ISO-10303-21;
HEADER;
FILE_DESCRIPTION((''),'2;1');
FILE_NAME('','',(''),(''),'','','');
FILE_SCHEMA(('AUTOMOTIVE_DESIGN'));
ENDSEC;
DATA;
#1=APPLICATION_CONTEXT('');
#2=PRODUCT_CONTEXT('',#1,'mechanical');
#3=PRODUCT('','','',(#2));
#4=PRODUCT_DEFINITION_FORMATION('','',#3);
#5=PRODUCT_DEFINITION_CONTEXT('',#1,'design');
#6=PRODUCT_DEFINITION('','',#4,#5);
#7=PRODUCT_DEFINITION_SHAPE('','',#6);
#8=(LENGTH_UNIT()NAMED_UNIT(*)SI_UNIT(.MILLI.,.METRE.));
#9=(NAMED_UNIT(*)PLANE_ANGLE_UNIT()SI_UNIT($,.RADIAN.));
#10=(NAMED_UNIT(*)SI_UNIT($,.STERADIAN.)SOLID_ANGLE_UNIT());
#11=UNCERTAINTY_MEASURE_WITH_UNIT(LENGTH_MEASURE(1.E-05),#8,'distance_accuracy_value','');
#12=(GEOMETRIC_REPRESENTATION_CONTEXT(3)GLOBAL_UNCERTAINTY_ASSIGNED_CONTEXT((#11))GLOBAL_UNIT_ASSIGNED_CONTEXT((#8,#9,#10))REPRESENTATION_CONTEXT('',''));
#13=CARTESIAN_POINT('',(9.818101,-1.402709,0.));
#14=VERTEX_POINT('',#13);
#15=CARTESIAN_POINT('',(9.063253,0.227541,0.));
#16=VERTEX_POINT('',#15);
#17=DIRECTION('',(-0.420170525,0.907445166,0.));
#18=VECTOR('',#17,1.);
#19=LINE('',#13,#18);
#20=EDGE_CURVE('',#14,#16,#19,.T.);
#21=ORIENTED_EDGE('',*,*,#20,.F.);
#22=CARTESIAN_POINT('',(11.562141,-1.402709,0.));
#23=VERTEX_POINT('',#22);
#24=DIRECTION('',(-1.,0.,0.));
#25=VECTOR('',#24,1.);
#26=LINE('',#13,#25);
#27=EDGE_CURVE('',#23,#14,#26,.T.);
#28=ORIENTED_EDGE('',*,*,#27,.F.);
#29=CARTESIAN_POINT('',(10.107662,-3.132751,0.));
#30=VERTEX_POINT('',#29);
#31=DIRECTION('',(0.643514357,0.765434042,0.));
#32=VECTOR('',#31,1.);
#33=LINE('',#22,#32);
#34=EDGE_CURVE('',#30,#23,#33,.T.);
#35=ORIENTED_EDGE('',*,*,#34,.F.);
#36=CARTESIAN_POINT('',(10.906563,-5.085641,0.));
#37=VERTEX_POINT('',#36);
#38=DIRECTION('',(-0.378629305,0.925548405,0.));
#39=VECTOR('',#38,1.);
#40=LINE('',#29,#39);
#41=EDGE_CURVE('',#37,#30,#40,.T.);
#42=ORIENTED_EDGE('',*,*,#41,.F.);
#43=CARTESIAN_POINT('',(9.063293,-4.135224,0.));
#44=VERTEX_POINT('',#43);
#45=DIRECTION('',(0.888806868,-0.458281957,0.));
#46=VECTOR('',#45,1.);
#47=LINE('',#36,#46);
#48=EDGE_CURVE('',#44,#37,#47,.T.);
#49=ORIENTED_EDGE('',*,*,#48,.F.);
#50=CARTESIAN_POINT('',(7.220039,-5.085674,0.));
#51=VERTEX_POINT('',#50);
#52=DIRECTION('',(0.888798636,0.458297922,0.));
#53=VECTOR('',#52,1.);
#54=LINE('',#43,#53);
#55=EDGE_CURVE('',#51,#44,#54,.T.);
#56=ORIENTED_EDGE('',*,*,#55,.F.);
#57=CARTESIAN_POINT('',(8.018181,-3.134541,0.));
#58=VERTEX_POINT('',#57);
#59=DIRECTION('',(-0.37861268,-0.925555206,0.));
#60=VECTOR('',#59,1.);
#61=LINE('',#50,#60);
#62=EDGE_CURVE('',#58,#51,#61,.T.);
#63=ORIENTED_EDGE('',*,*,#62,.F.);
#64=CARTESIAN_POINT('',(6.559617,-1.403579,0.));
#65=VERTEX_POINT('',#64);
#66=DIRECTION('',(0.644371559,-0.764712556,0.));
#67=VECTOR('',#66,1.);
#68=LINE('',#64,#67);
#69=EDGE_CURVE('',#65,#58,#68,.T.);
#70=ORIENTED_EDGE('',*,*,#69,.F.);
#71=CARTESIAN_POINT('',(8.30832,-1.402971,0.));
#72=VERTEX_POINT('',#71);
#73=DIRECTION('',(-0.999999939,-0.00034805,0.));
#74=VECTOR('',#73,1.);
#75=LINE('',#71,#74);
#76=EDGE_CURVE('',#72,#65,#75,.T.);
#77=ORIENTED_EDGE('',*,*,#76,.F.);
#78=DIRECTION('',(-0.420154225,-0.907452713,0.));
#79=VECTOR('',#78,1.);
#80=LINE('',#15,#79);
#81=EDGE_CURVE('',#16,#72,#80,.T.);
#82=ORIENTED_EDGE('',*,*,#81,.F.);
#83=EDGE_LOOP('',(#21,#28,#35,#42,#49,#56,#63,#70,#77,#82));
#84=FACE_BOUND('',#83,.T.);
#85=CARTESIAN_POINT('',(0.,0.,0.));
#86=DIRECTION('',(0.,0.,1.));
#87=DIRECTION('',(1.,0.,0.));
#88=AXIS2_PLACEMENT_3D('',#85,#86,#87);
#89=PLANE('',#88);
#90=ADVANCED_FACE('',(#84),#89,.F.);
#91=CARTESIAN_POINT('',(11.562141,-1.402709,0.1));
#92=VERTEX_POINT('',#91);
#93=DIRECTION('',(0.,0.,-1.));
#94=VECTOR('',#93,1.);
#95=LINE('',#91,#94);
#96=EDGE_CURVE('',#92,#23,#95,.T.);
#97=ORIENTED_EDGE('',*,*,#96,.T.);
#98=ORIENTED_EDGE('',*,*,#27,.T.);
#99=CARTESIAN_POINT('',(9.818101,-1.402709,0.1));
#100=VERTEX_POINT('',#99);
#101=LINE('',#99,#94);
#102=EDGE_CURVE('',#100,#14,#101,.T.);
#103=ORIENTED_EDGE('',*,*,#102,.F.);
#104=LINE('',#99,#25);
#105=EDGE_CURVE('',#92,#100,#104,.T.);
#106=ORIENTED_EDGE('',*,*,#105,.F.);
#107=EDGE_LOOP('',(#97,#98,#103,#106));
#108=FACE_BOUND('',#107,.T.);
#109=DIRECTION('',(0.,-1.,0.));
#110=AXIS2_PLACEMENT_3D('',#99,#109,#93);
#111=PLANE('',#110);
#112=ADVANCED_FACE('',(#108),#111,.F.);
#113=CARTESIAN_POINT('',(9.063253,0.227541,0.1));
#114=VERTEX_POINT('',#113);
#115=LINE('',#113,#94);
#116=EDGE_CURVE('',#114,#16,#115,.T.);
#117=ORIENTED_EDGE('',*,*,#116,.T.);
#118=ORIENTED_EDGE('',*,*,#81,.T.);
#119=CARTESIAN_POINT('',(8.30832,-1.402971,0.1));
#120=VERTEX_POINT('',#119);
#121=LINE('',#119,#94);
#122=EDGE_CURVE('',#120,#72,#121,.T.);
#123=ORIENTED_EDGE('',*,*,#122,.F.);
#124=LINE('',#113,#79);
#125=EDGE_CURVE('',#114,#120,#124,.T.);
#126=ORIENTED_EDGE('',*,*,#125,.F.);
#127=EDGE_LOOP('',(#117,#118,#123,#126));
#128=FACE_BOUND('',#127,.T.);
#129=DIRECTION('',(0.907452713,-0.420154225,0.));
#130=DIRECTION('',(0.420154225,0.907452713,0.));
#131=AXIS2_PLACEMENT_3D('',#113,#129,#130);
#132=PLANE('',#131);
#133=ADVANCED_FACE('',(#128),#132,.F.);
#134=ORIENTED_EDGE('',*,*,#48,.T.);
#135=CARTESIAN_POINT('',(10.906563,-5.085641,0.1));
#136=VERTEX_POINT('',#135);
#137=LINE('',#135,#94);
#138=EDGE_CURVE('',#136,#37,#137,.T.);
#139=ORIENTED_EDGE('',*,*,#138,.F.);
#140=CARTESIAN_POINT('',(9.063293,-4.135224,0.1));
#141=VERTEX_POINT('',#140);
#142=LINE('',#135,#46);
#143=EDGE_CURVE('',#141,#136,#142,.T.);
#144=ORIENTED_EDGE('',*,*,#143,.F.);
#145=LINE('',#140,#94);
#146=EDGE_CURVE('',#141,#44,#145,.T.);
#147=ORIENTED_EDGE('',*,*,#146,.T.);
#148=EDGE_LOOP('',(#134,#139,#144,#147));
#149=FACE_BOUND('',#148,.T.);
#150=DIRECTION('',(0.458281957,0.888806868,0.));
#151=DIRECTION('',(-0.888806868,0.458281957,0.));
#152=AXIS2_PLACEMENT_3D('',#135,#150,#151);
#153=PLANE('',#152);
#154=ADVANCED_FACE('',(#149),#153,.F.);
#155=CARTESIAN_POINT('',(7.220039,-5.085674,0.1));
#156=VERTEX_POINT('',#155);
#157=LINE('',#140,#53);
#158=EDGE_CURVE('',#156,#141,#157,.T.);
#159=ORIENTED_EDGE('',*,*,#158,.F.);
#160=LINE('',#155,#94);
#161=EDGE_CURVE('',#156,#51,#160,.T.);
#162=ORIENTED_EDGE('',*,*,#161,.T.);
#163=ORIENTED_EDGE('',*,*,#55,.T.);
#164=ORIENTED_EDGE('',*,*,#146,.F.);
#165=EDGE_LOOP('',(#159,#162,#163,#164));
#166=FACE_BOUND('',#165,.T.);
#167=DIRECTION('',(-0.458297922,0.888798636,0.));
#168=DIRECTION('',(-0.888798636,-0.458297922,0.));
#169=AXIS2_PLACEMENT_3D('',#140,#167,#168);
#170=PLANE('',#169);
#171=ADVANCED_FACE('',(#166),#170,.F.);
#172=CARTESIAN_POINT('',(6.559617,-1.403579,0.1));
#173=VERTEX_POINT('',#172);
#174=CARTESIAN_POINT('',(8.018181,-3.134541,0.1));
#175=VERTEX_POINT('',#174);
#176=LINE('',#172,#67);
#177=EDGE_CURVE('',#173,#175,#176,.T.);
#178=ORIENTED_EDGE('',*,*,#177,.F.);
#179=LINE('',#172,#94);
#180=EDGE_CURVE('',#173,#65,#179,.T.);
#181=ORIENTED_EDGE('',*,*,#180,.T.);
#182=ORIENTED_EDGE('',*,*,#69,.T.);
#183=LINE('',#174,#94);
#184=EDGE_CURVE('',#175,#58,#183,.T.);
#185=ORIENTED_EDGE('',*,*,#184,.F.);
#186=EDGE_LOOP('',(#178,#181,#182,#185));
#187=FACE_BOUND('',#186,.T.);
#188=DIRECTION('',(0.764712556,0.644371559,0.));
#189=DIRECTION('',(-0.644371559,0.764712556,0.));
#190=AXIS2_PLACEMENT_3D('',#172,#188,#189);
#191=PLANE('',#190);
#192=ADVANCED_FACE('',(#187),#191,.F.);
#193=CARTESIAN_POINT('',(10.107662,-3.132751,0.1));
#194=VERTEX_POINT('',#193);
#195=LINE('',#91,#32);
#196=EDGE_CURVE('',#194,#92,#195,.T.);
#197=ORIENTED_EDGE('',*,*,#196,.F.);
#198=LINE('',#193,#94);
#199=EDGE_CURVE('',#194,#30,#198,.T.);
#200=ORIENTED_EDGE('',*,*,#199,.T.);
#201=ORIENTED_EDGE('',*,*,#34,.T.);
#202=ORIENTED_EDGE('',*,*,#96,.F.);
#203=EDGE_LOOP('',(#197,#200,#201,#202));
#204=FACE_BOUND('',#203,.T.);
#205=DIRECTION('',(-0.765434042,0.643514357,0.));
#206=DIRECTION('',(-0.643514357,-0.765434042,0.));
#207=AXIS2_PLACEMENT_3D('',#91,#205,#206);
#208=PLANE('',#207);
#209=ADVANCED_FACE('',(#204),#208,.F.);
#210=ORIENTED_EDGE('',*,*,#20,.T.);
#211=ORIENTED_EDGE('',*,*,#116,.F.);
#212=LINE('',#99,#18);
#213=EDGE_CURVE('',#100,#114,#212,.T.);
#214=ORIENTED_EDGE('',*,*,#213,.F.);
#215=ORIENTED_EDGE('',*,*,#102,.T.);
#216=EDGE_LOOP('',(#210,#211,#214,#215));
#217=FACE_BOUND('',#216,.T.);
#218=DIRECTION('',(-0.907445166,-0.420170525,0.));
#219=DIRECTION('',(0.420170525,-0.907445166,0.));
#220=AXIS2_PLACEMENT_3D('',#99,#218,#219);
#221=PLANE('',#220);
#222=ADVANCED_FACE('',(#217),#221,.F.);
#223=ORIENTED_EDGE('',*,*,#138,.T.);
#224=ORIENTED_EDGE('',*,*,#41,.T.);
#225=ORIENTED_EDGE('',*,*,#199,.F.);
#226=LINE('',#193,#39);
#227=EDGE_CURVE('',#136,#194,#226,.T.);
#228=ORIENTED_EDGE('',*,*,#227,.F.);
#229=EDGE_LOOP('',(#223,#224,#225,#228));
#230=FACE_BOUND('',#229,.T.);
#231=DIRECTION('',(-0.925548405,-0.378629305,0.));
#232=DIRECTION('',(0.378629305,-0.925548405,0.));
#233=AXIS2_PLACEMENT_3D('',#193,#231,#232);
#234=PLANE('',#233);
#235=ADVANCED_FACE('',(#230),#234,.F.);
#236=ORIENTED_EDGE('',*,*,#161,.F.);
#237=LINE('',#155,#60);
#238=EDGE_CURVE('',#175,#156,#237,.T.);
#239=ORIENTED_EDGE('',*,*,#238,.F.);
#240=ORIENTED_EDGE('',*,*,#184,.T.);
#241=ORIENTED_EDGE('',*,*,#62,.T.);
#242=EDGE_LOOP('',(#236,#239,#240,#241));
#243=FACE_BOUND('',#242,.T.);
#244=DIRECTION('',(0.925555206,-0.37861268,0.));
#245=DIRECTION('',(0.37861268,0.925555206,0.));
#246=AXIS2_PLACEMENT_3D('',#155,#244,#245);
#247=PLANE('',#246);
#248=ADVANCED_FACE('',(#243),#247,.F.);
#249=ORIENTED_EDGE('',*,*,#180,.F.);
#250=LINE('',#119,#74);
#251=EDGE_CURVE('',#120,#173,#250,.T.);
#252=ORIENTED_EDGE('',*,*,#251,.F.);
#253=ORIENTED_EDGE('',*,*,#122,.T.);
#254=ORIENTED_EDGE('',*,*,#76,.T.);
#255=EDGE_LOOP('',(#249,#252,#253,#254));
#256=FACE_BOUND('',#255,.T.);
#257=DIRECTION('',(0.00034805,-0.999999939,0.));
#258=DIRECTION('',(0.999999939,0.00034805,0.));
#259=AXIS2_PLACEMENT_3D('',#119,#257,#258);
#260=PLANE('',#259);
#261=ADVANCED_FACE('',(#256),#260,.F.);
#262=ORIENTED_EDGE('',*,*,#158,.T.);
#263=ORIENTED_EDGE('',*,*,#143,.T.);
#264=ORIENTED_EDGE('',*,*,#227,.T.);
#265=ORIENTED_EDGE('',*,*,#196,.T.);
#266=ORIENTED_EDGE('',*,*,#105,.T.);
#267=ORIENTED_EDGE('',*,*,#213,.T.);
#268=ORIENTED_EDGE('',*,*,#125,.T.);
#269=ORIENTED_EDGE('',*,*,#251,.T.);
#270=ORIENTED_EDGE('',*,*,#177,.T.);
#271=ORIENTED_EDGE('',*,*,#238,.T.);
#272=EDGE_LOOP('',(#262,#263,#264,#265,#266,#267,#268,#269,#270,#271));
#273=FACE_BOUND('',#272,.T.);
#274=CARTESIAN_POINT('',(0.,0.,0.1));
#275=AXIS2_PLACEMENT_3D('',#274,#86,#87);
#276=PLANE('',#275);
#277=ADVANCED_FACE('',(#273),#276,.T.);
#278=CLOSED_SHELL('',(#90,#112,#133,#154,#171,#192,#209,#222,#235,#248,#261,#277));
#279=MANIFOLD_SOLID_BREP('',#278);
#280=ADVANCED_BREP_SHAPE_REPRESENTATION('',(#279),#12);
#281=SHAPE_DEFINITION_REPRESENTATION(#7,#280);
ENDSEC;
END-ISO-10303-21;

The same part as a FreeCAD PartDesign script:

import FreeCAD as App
import Part
import Sketcher

V = App.Vector


def add_polygon(sketch, points):
    """Adds a closed chain of lines whose ends are joined by coincident constraints."""
    first, n = sketch.GeometryCount, len(points)
    for a, b in zip(points, points[1:] + points[:1]):
        sketch.addGeometry(Part.LineSegment(App.Vector(*a, 0), App.Vector(*b, 0)), False)
    for i in range(n):
        sketch.addConstraint(Sketcher.Constraint("Coincident", first + i, 2, first + (i + 1) % n, 1))

doc = App.newDocument("Part")
body = doc.addObject("PartDesign::Body", "Body")

sketch1 = body.newObject("Sketcher::SketchObject", "Sketch")
sketch1.AttachmentSupport = (doc.getObject("XY_Plane"), [""])
sketch1.MapMode = "FlatFace"
add_polygon(sketch1, [(11.562141, -1.402709), (9.818101, -1.402709), (9.063253, 0.227541), (8.30832, -1.402971), (6.559617, -1.403579), (8.018181, -3.134541), (7.220039, -5.085674), (9.063293, -4.135224), (10.906563, -5.085641), (10.107662, -3.132751)])
sketch1.addConstraint(Sketcher.Constraint("Horizontal", 0))
sketch1.addConstraint(Sketcher.Constraint("Equal", 6, 7))
sketch1.addConstraint(Sketcher.Constraint("Distance", 2, 1.796801))
sketch1.addConstraint(Sketcher.Constraint("DistanceX", 0, 2, 0, 1, 1.744039))
sketch1.addConstraint(Sketcher.Constraint("DistanceX", -1, 1, 0, 2, 9.818101))
sketch1.addConstraint(Sketcher.Constraint("DistanceY", 7, 2, 4, 2, 1.951101))
sketch1.addConstraint(Sketcher.Constraint("DistanceX", 8, 2, 7, 2, 0.798901))
sketch1.addConstraint(Sketcher.Constraint("Distance", 5, 2.108069))
sketch1.addConstraint(Sketcher.Constraint("Distance", 6, 2.073871))
sketch1.addConstraint(Sketcher.Constraint("Distance", 8, 2.109981))
sketch1.addConstraint(Sketcher.Constraint("Distance", 9, 2.260211))
sketch1.addConstraint(Sketcher.Constraint("DistanceY", 0, 2, -1, 1, 1.402709))
sketch1.addConstraint(Sketcher.Constraint("DistanceY", -1, 1, 1, 2, 0.227541))
sketch1.addConstraint(Sketcher.Constraint("DistanceX", -1, 1, 2, 2, 8.30832))
sketch1.addConstraint(Sketcher.Constraint("DistanceY", 2, 2, -1, 1, 1.402971))
sketch1.addConstraint(Sketcher.Constraint("DistanceY", 3, 2, -1, 1, 1.403579))
sketch1.addConstraint(Sketcher.Constraint("DistanceX", -1, 1, 4, 2, 8.018181))
sketch1.addConstraint(Sketcher.Constraint("DistanceY", 4, 2, -1, 1, 3.134541))
sketch1.addConstraint(Sketcher.Constraint("DistanceX", -1, 1, 5, 2, 7.220039))
sketch1.addConstraint(Sketcher.Constraint("Distance", 3, 1.748703))
pad1 = body.newObject("PartDesign::Pad", "Pad")
pad1.Profile = sketch1
pad1.Length = 0.1

doc.recompute()
